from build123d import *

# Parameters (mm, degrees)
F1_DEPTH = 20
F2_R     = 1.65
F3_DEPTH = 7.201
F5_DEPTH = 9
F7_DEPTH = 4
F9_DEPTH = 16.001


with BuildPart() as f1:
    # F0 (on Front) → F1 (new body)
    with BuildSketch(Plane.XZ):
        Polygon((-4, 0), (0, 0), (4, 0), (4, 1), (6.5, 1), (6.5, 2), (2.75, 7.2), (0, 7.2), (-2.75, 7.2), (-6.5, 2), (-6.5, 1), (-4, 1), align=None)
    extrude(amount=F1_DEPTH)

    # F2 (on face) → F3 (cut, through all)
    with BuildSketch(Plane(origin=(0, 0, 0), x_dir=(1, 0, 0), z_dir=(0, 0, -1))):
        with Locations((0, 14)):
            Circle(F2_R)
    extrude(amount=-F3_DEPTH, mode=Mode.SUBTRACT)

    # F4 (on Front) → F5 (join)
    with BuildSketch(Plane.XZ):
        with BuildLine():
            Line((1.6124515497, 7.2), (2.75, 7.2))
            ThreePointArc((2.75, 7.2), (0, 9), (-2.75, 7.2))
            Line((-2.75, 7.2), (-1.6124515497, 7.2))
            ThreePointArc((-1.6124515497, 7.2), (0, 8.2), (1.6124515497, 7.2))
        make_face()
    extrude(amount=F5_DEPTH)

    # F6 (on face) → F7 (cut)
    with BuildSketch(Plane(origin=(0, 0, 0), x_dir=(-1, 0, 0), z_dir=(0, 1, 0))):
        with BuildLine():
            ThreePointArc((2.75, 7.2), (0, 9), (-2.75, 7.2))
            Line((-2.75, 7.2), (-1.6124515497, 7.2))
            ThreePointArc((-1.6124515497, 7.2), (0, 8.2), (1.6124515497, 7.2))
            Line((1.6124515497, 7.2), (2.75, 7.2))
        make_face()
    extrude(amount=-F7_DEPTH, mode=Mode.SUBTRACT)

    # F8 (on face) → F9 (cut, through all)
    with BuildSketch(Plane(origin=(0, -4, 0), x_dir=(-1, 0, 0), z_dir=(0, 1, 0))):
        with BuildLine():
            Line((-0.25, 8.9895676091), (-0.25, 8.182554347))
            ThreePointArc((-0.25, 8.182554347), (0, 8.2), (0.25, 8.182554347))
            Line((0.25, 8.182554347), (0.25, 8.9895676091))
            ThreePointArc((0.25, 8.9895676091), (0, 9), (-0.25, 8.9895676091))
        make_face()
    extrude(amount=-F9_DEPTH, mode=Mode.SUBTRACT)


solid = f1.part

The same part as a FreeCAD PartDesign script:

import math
import FreeCAD as App
import Part
import Sketcher
from FreeCAD import Vector
Q = App.Units.Quantity


def add_polygon(sketch, points):
    """Adds a closed chain of lines whose ends are joined by coincident constraints."""
    first, n = sketch.GeometryCount, len(points)
    for a, b in zip(points, points[1:] + points[:1]):
        sketch.addGeometry(Part.LineSegment(App.Vector(*a, 0), App.Vector(*b, 0)), False)
    for i in range(n):
        sketch.addConstraint(Sketcher.Constraint("Coincident", first + i, 2, first + (i + 1) % n, 1))

doc = App.newDocument("Part")
body = doc.addObject("PartDesign::Body", "Body")

sketch1 = body.newObject("Sketcher::SketchObject", "Sketch")
sketch1.AttachmentSupport = (doc.getObject("XZ_Plane"), [""])
sketch1.MapMode = "FlatFace"
add_polygon(sketch1, [(-4, 0), (4, 0), (4, 1), (6.5, 1), (6.5, 2), (2.8, 7.2), (-2.8, 7.2), (-6.5, 2), (-6.5, 1), (-4, 1)])
sketch1.addConstraint(Sketcher.Constraint("Horizontal", 0))
sketch1.addConstraint(Sketcher.Constraint("Vertical", 1))
sketch1.addConstraint(Sketcher.Constraint("Horizontal", 2))
sketch1.addConstraint(Sketcher.Constraint("Vertical", 3))
sketch1.addConstraint(Sketcher.Constraint("Horizontal", 5))
sketch1.addConstraint(Sketcher.Constraint("Vertical", 7))
sketch1.addConstraint(Sketcher.Constraint("Horizontal", 8))
sketch1.addConstraint(Sketcher.Constraint("Vertical", 9))
sketch1.addConstraint(Sketcher.Constraint("Symmetric", 0, 2, 9, 2, -1, 1))
sketch1.addConstraint(Sketcher.Constraint("Symmetric", 3, 2, 6, 2, -2))
sketch1.addConstraint(Sketcher.Constraint("Horizontal", 2, 2, 7, 2))
sketch1.addConstraint(Sketcher.Constraint("Equal", 1, 3))
sketch1.addConstraint(Sketcher.Constraint("Equal", 4, 6))
sketch1.addConstraint(Sketcher.Constraint("DistanceX", 0, 1, 0, 2, Q("8 mm")))
sketch1.addConstraint(Sketcher.Constraint("DistanceY", 1, 1, 1, 2, Q("1 mm")))
sketch1.addConstraint(Sketcher.Constraint("DistanceX", 2, 1, 2, 2, Q("2.5 mm")))
sketch1.addConstraint(Sketcher.Constraint("DistanceX", 5, 2, 5, 1, Q("5.5 mm")))
sketch1.addConstraint(Sketcher.Constraint("DistanceY", -1, 1, 4, 2, Q("7.2 mm")))
pad1 = body.newObject("PartDesign::Pad", "Pad")
pad1.Profile = sketch1
pad1.Length = 20

sketch2 = body.newObject("Sketcher::SketchObject", "Sketch001")
sketch2.AttachmentSupport = (doc.getObject("XY_Plane"), [""])
sketch2.MapMode = "FlatFace"
sketch2.addGeometry(Part.Circle(Vector(0, -14, 0), Vector(0, 0, 1), 1.6), False)
sketch2.addConstraint(Sketcher.Constraint("PointOnObject", 0, 3, -2))
sketch2.addConstraint(Sketcher.Constraint("Diameter", 0, Q("3.3 mm")))
sketch2.addConstraint(Sketcher.Constraint("DistanceY", 0, 3, -1, 1, Q("14 mm")))
pocket1 = body.newObject("PartDesign::Pocket", "Pocket")
pocket1.Profile = sketch2
pocket1.Type = "ThroughAll"
pocket1.Reversed = True

sketch3 = body.newObject("Sketcher::SketchObject", "Sketch002")
sketch3.AttachmentSupport = (doc.getObject("XZ_Plane"), [""])
sketch3.MapMode = "FlatFace"
sketch3.addGeometry(Part.LineSegment(Vector(1.6, 7.2, 0), Vector(2.8, 7.2, 0)), False)
sketch3.addGeometry(Part.ArcOfCircle(Part.Circle(Vector(0, 6, 0), Vector(0, 0, 1), 3), math.radians(24), math.radians(156)), False)
sketch3.addGeometry(Part.LineSegment(Vector(-2.8, 7.2, 0), Vector(-1.6, 7.2, 0)), False)
sketch3.addGeometry(Part.ArcOfCircle(Part.Circle(Vector(0, 6.4, 0), Vector(0, 0, 1), 1.8), math.radians(26), math.radians(154)), False)
sketch3.addConstraint(Sketcher.Constraint("Coincident", 0, 2, 1, 1))
sketch3.addConstraint(Sketcher.Constraint("Coincident", 1, 2, 2, 1))
sketch3.addConstraint(Sketcher.Constraint("Coincident", 2, 2, 3, 2))
sketch3.addConstraint(Sketcher.Constraint("Coincident", 3, 1, 0, 1))
sketch3.addConstraint(Sketcher.Constraint("Horizontal", 0))
sketch3.addConstraint(Sketcher.Constraint("Horizontal", 2))
sketch3.addConstraint(Sketcher.Constraint("Symmetric", 0, 2, 1, 2, -2))
sketch3.addConstraint(Sketcher.Constraint("PointOnObject", 3, 3, -2))
sketch3.addConstraint(Sketcher.Constraint("Radius", 3, Q("1.8 mm")))
sketch3.addConstraint(Sketcher.Constraint("DistanceY", -1, 1, 3, 3, Q("6.4 mm")))
sketch3.addConstraint(Sketcher.Constraint("DistanceY", -1, 1, 0, 2, Q("7.2 mm")))
sketch3.addConstraint(Sketcher.Constraint("DistanceX", 1, 2, 0, 2, Q("5.5 mm")))
sketch3.addConstraint(Sketcher.Constraint("Radius", 1, Q("3.000694 mm")))
pad2 = body.newObject("PartDesign::Pad", "Pad001")
pad2.Profile = sketch3
pad2.Length = 9

sketch4 = body.newObject("Sketcher::SketchObject", "Sketch003")
sketch4.AttachmentSupport = (doc.getObject("XZ_Plane"), [""])
sketch4.MapMode = "FlatFace"
sketch4.addGeometry(Part.ArcOfCircle(Part.Circle(Vector(0, 6, 0), Vector(0, 0, 1), 3), math.radians(24), math.radians(156)), False)
sketch4.addGeometry(Part.LineSegment(Vector(2.8, 7.2, 0), Vector(1.6, 7.2, 0)), False)
sketch4.addGeometry(Part.ArcOfCircle(Part.Circle(Vector(0, 6.4, 0), Vector(0, 0, 1), 1.8), math.radians(26), math.radians(154)), False)
sketch4.addGeometry(Part.LineSegment(Vector(-1.6, 7.2, 0), Vector(-2.8, 7.2, 0)), False)
sketch4.addConstraint(Sketcher.Constraint("Coincident", 0, 1, 1, 1))
sketch4.addConstraint(Sketcher.Constraint("Coincident", 1, 2, 2, 1))
sketch4.addConstraint(Sketcher.Constraint("Coincident", 2, 2, 3, 1))
sketch4.addConstraint(Sketcher.Constraint("Coincident", 3, 2, 0, 2))
sketch4.addConstraint(Sketcher.Constraint("Horizontal", 1))
sketch4.addConstraint(Sketcher.Constraint("Horizontal", 3))
sketch4.addConstraint(Sketcher.Constraint("Symmetric", 1, 2, 2, 2, -2))
sketch4.addConstraint(Sketcher.Constraint("PointOnObject", 0, 3, -2))
sketch4.addConstraint(Sketcher.Constraint("Radius", 2, Q("1.8 mm")))
sketch4.addConstraint(Sketcher.Constraint("DistanceY", -1, 1, 2, 3, Q("6.4 mm")))
sketch4.addConstraint(Sketcher.Constraint("DistanceY", -1, 1, 0, 1, Q("7.2 mm")))
sketch4.addConstraint(Sketcher.Constraint("DistanceX", 3, 2, 0, 1, Q("5.5 mm")))
sketch4.addConstraint(Sketcher.Constraint("Radius", 0, Q("3.000694 mm")))
pocket2 = body.newObject("PartDesign::Pocket", "Pocket001")
pocket2.Profile = sketch4
pocket2.Length = 4
pocket2.Reversed = True

sketch5 = body.newObject("Sketcher::SketchObject", "Sketch004")
sketch5.AttachmentSupport = (doc.getObject("XZ_Plane"), [""])
sketch5.MapMode = "FlatFace"
sketch5.AttachmentOffset = App.Placement(Vector(0, 0, 4), App.Rotation())
sketch5.addGeometry(Part.LineSegment(Vector(0.2, 9, 0), Vector(0.2, 8.2, 0)), False)
sketch5.addGeometry(Part.ArcOfCircle(Part.Circle(Vector(0, 6.4, 0), Vector(0, 0, 1), 1.8), math.radians(82.02), math.radians(97.98)), False)
sketch5.addGeometry(Part.LineSegment(Vector(-0.2, 8.2, 0), Vector(-0.2, 9, 0)), False)
sketch5.addGeometry(Part.ArcOfCircle(Part.Circle(Vector(0, 6, 0), Vector(0, 0, 1), 3), math.radians(85.22), math.radians(94.78)), False)
sketch5.addConstraint(Sketcher.Constraint("Coincident", 0, 2, 1, 1))
sketch5.addConstraint(Sketcher.Constraint("Coincident", 1, 2, 2, 1))
sketch5.addConstraint(Sketcher.Constraint("Coincident", 2, 2, 3, 2))
sketch5.addConstraint(Sketcher.Constraint("Coincident", 3, 1, 0, 1))
sketch5.addConstraint(Sketcher.Constraint("Vertical", 0))
sketch5.addConstraint(Sketcher.Constraint("Vertical", 2))
sketch5.addConstraint(Sketcher.Constraint("Symmetric", 0, 2, 1, 2, -2))
sketch5.addConstraint(Sketcher.Constraint("PointOnObject", 3, 3, -2))
sketch5.addConstraint(Sketcher.Constraint("Radius", 1, Q("1.8 mm")))
sketch5.addConstraint(Sketcher.Constraint("DistanceY", -1, 1, 1, 3, Q("6.4 mm")))
sketch5.addConstraint(Sketcher.Constraint("DistanceX", 1, 2, 0, 2, Q("0.5 mm")))
sketch5.addConstraint(Sketcher.Constraint("Radius", 3, Q("3.000694 mm")))
sketch5.addConstraint(Sketcher.Constraint("DistanceY", 0, 2, 0, 1, Q("0.807013 mm")))
pocket3 = body.newObject("PartDesign::Pocket", "Pocket002")
pocket3.Profile = sketch5
pocket3.Type = "ThroughAll"
pocket3.Reversed = True

doc.recompute()
